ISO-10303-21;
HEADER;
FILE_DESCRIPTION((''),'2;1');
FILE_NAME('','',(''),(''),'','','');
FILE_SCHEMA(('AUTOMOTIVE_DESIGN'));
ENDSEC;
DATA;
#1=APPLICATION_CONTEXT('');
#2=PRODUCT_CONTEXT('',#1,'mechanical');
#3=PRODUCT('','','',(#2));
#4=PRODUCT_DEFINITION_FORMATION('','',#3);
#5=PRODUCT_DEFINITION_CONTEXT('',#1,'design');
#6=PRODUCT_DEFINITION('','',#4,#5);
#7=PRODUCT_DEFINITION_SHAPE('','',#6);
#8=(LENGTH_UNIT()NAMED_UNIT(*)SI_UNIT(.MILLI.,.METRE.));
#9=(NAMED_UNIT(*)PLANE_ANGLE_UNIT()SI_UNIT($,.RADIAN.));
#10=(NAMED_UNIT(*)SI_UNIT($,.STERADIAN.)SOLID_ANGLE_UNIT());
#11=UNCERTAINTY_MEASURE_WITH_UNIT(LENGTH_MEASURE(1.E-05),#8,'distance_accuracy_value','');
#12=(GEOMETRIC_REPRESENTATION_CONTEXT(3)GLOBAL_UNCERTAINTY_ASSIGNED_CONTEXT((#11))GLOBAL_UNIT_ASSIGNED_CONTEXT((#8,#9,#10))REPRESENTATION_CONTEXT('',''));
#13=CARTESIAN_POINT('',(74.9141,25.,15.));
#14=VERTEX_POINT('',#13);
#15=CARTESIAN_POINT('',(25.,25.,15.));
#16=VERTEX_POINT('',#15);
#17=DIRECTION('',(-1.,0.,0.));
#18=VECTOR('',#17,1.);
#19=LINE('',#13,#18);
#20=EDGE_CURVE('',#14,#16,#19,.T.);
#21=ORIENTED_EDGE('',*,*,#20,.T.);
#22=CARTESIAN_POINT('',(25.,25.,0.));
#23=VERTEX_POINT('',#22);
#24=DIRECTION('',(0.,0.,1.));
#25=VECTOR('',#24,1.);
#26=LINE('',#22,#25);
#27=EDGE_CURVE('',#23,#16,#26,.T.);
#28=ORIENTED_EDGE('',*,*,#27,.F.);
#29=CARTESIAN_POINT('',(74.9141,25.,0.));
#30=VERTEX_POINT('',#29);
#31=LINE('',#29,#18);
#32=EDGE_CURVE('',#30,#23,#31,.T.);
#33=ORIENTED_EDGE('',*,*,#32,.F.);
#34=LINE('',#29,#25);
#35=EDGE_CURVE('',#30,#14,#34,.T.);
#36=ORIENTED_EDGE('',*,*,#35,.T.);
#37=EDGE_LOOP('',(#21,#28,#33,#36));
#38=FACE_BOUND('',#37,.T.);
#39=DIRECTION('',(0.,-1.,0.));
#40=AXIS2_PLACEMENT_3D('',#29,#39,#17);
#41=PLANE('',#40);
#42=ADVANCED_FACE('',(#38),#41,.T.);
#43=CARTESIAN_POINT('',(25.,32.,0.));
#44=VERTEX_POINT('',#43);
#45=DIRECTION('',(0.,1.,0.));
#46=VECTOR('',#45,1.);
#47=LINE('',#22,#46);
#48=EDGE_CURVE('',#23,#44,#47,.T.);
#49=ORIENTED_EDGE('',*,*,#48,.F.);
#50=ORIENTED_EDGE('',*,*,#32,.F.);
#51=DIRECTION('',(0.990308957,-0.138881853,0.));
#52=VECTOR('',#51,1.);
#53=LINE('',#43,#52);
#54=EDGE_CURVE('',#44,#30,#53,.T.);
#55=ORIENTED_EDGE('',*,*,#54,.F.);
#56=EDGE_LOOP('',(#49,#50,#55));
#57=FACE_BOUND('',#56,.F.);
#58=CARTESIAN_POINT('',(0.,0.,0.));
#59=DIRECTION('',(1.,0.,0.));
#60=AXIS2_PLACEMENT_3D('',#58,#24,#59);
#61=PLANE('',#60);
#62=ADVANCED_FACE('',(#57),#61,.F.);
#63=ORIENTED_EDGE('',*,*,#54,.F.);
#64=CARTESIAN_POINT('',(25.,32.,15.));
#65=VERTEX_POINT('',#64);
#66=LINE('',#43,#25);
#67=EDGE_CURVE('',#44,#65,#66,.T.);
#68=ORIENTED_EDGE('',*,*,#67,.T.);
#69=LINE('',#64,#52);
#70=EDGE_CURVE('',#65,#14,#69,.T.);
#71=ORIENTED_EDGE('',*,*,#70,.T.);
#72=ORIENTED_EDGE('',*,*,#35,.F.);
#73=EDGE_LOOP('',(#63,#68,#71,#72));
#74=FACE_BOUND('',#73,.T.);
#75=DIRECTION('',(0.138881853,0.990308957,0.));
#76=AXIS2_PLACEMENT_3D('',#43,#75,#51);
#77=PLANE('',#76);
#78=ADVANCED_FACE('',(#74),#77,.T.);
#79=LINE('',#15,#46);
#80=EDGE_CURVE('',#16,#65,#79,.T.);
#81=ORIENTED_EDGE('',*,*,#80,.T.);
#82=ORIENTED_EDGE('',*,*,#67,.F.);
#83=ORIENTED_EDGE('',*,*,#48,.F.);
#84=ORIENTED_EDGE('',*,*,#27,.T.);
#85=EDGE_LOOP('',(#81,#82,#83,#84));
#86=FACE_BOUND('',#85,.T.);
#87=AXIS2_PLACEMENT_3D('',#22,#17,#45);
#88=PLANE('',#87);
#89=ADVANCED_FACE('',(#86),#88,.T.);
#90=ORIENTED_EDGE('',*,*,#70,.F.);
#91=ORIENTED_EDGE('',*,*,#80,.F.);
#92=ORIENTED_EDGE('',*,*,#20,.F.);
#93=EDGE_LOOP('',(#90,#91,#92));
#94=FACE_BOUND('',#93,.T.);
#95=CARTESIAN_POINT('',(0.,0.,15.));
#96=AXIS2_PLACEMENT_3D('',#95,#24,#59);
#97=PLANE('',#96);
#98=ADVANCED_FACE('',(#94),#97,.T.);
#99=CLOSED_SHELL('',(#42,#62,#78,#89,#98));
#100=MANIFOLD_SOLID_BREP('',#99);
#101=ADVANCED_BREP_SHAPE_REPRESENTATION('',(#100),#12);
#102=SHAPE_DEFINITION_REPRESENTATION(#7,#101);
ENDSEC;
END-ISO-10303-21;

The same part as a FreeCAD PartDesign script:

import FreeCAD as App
import Part
import Sketcher

doc = App.newDocument("Part")
body = doc.addObject("PartDesign::Body", "Body")

# Sketch on XY plane
sketch1 = body.newObject("Sketcher::SketchObject", "Sketch")
sketch1.AttachmentSupport = (doc.getObject("XY_Plane"), [""])
sketch1.MapMode = "FlatFace"
sketch1.addGeometry(Part.LineSegment(App.Vector(25, 32, 0), App.Vector(25, 25, 0)), False)
sketch1.addGeometry(Part.LineSegment(App.Vector(25, 25, 0), App.Vector(75, 25, 0)), False)
sketch1.addGeometry(Part.LineSegment(App.Vector(75, 25, 0), App.Vector(25, 32, 0)), False)
sketch1.addConstraint(Sketcher.Constraint("Coincident", 0, 2, 1, 1))
sketch1.addConstraint(Sketcher.Constraint("Coincident", 1, 2, 2, 1))
sketch1.addConstraint(Sketcher.Constraint("Coincident", 2, 2, 0, 1))
sketch1.addConstraint(Sketcher.Constraint("Vertical", 0))
sketch1.addConstraint(Sketcher.Constraint("Horizontal", 1))
sketch1.addConstraint(Sketcher.Constraint("DistanceY", 0, 2, 0, 1, 7.0))
sketch1.addConstraint(Sketcher.Constraint("DistanceX", -1, 1, 0, 2, 25.0))
sketch1.addConstraint(Sketcher.Constraint("DistanceY", -1, 1, 0, 2, 25.0))
sketch1.addConstraint(Sketcher.Constraint("DistanceX", 1, 1, 1, 2, 49.914))
pad1 = body.newObject("PartDesign::Pad", "Pad")
pad1.Profile = sketch1
pad1.Length = 15

doc.recompute()
